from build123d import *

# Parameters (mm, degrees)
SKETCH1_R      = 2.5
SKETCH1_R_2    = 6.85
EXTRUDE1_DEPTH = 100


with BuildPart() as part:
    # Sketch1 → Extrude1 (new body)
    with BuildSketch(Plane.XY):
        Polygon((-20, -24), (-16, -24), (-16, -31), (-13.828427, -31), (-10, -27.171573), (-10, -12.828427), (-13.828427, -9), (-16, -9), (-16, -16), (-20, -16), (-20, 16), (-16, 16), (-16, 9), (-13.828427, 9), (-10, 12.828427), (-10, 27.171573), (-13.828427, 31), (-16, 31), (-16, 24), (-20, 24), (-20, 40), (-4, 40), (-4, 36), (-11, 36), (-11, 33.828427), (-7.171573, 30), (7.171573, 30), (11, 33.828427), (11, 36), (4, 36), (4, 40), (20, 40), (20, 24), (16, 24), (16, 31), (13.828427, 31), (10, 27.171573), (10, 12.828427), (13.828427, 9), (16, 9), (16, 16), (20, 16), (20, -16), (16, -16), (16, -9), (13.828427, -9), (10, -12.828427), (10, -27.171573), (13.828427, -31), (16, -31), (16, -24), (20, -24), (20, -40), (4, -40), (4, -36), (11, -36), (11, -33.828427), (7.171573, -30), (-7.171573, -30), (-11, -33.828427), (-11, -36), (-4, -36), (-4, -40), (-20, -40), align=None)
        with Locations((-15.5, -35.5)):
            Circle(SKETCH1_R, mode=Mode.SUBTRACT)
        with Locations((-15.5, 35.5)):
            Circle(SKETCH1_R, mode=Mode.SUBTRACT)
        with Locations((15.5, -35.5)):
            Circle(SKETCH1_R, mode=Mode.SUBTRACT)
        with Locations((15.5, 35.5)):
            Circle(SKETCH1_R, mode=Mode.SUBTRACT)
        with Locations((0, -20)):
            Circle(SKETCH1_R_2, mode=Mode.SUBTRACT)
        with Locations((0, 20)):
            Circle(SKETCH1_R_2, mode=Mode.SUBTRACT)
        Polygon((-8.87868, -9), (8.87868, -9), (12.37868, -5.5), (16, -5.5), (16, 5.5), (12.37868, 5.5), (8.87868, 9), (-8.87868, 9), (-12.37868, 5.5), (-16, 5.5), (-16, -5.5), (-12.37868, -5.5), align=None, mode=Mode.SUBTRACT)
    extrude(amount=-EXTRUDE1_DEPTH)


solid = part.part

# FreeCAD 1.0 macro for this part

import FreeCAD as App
import Part
import Sketcher
from FreeCAD import Vector


def add_polygon(sketch, points):
    """Adds a closed chain of lines whose ends are joined by coincident constraints."""
    first, n = sketch.GeometryCount, len(points)
    for a, b in zip(points, points[1:] + points[:1]):
        sketch.addGeometry(Part.LineSegment(App.Vector(*a, 0), App.Vector(*b, 0)), False)
    for i in range(n):
        sketch.addConstraint(Sketcher.Constraint("Coincident", first + i, 2, first + (i + 1) % n, 1))

doc = App.newDocument("Part")
body = doc.addObject("PartDesign::Body", "Body")

# Sketch on XY plane
sketch1 = doc.addObject("Sketcher::SketchObject", "Sketch")
body.addObject(sketch1)
sketch1.AttachmentSupport = (doc.XY_Plane, [""])
sketch1.MapMode = "FlatFace"
add_polygon(sketch1, [(-16, -24), (-20, -24), (-20, -40), (-4, -40), (-4, -36), (-11, -36), (-11, -33.828427), (-7.171573, -30), (7.171573, -30), (11, -33.828427), (11, -36), (4, -36), (4, -40), (20, -40), (20, -24), (16, -24), (16, -31), (13.828427, -31), (10, -27.171573), (10, -12.828427), (13.828427, -9), (16, -9), (16, -16), (20, -16), (20, 16), (16, 16), (16, 9), (13.828427, 9), (10, 12.828427), (10, 27.171573), (13.828427, 31), (16, 31), (16, 24), (20, 24), (20, 40), (4, 40), (4, 36), (11, 36), (11, 33.828427), (7.171573, 30), (-7.171573, 30), (-11, 33.828427), (-11, 36), (-4, 36), (-4, 40), (-20, 40), (-20, 24), (-16, 24), (-16, 31), (-13.828427, 31), (-10, 27.171573), (-10, 12.828427), (-13.828427, 9), (-16, 9), (-16, 16), (-20, 16), (-20, -16), (-16, -16), (-16, -9), (-13.828427, -9), (-10, -12.828427), (-10, -27.171573), (-13.828427, -31), (-16, -31)])  # lines 0-63
sketch1.addGeometry(Part.Circle(Vector(15.5, -35.5, 0), Vector(0, 0, 1), 2.5), False)  # 64
sketch1.addGeometry(Part.Circle(Vector(0, -20, 0), Vector(0, 0, 1), 6.85), False)  # 65
sketch1.addGeometry(Part.Circle(Vector(-15.5, -35.5, 0), Vector(0, 0, 1), 2.5), False)  # 66
sketch1.addGeometry(Part.Circle(Vector(15.5, 35.5, 0), Vector(0, 0, 1), 2.5), False)  # 67
add_polygon(sketch1, [(-8.87868, -9), (-12.37868, -5.5), (-16, -5.5), (-16, 5.5), (-12.37868, 5.5), (-8.87868, 9), (8.87868, 9), (12.37868, 5.5), (16, 5.5), (16, -5.5), (12.37868, -5.5), (8.87868, -9)])  # lines 68-79
sketch1.addGeometry(Part.Circle(Vector(0, 20, 0), Vector(0, 0, 1), 6.85), False)  # 80
sketch1.addGeometry(Part.Circle(Vector(-15.5, 35.5, 0), Vector(0, 0, 1), 2.5), False)  # 81
sketch1.addConstraint(Sketcher.Constraint("Horizontal", 0))
sketch1.addConstraint(Sketcher.Constraint("Vertical", 1))
sketch1.addConstraint(Sketcher.Constraint("Horizontal", 2))
sketch1.addConstraint(Sketcher.Constraint("Vertical", 3))
sketch1.addConstraint(Sketcher.Constraint("Horizontal", 4))
sketch1.addConstraint(Sketcher.Constraint("Vertical", 5))
sketch1.addConstraint(Sketcher.Constraint("Horizontal", 7))
sketch1.addConstraint(Sketcher.Constraint("Vertical", 9))
sketch1.addConstraint(Sketcher.Constraint("Horizontal", 10))
sketch1.addConstraint(Sketcher.Constraint("Vertical", 11))
sketch1.addConstraint(Sketcher.Constraint("Horizontal", 12))
sketch1.addConstraint(Sketcher.Constraint("Vertical", 13))
sketch1.addConstraint(Sketcher.Constraint("Horizontal", 14))
sketch1.addConstraint(Sketcher.Constraint("Vertical", 15))
sketch1.addConstraint(Sketcher.Constraint("Horizontal", 16))
sketch1.addConstraint(Sketcher.Constraint("Vertical", 18))
sketch1.addConstraint(Sketcher.Constraint("Horizontal", 20))
sketch1.addConstraint(Sketcher.Constraint("Vertical", 21))
sketch1.addConstraint(Sketcher.Constraint("Horizontal", 22))
sketch1.addConstraint(Sketcher.Constraint("Vertical", 23))
sketch1.addConstraint(Sketcher.Constraint("Horizontal", 24))
sketch1.addConstraint(Sketcher.Constraint("Vertical", 25))
sketch1.addConstraint(Sketcher.Constraint("Horizontal", 26))
sketch1.addConstraint(Sketcher.Constraint("Vertical", 28))
sketch1.addConstraint(Sketcher.Constraint("Horizontal", 30))
sketch1.addConstraint(Sketcher.Constraint("Vertical", 31))
sketch1.addConstraint(Sketcher.Constraint("Horizontal", 32))
sketch1.addConstraint(Sketcher.Constraint("Vertical", 33))
sketch1.addConstraint(Sketcher.Constraint("Horizontal", 34))
sketch1.addConstraint(Sketcher.Constraint("Vertical", 35))
sketch1.addConstraint(Sketcher.Constraint("Horizontal", 36))
sketch1.addConstraint(Sketcher.Constraint("Vertical", 37))
sketch1.addConstraint(Sketcher.Constraint("Horizontal", 39))
sketch1.addConstraint(Sketcher.Constraint("Vertical", 41))
sketch1.addConstraint(Sketcher.Constraint("Horizontal", 42))
sketch1.addConstraint(Sketcher.Constraint("Vertical", 43))
sketch1.addConstraint(Sketcher.Constraint("Horizontal", 44))
sketch1.addConstraint(Sketcher.Constraint("Vertical", 45))
sketch1.addConstraint(Sketcher.Constraint("Horizontal", 46))
sketch1.addConstraint(Sketcher.Constraint("Vertical", 47))
sketch1.addConstraint(Sketcher.Constraint("Horizontal", 48))
sketch1.addConstraint(Sketcher.Constraint("Vertical", 50))
sketch1.addConstraint(Sketcher.Constraint("Horizontal", 52))
sketch1.addConstraint(Sketcher.Constraint("Vertical", 53))
sketch1.addConstraint(Sketcher.Constraint("Horizontal", 54))
sketch1.addConstraint(Sketcher.Constraint("Vertical", 55))
sketch1.addConstraint(Sketcher.Constraint("Horizontal", 56))
sketch1.addConstraint(Sketcher.Constraint("Vertical", 57))
sketch1.addConstraint(Sketcher.Constraint("Horizontal", 58))
sketch1.addConstraint(Sketcher.Constraint("Vertical", 60))
sketch1.addConstraint(Sketcher.Constraint("Horizontal", 62))
sketch1.addConstraint(Sketcher.Constraint("Vertical", 63))
sketch1.addConstraint(Sketcher.Constraint("Horizontal", 69))
sketch1.addConstraint(Sketcher.Constraint("Vertical", 70))
sketch1.addConstraint(Sketcher.Constraint("Horizontal", 71))
sketch1.addConstraint(Sketcher.Constraint("Horizontal", 73))
sketch1.addConstraint(Sketcher.Constraint("Horizontal", 75))
sketch1.addConstraint(Sketcher.Constraint("Vertical", 76))
sketch1.addConstraint(Sketcher.Constraint("Horizontal", 77))
sketch1.addConstraint(Sketcher.Constraint("Horizontal", 79))
sketch1.addConstraint(Sketcher.Constraint("Equal", 64, 66))
sketch1.addConstraint(Sketcher.Constraint("Equal", 66, 67))
sketch1.addConstraint(Sketcher.Constraint("Equal", 65, 80))
sketch1.addConstraint(Sketcher.Constraint("Equal", 67, 81))
sketch1.addConstraint(Sketcher.Constraint("Symmetric", 66, 3, 67, 3, -1, 1))
sketch1.addConstraint(Sketcher.Constraint("Symmetric", 65, 3, 80, 3, -1, 1))
sketch1.addConstraint(Sketcher.Constraint("Symmetric", 64, 3, 81, 3, -1, 1))
sketch1.addConstraint(Sketcher.Constraint("Symmetric", 0, 2, 32, 2, -1, 1))
sketch1.addConstraint(Sketcher.Constraint("Symmetric", 2, 2, 34, 2, -1, 1))
sketch1.addConstraint(Sketcher.Constraint("Symmetric", 4, 2, 36, 2, -1, 1))
sketch1.addConstraint(Sketcher.Constraint("Symmetric", 6, 2, 38, 2, -1, 1))
sketch1.addConstraint(Sketcher.Constraint("Symmetric", 8, 2, 40, 2, -1, 1))
sketch1.addConstraint(Sketcher.Constraint("Symmetric", 10, 2, 42, 2, -1, 1))
sketch1.addConstraint(Sketcher.Constraint("Symmetric", 12, 2, 44, 2, -1, 1))
sketch1.addConstraint(Sketcher.Constraint("Symmetric", 14, 2, 46, 2, -1, 1))
sketch1.addConstraint(Sketcher.Constraint("Symmetric", 16, 2, 48, 2, -1, 1))
sketch1.addConstraint(Sketcher.Constraint("Symmetric", 17, 2, 49, 2, -1, 1))
sketch1.addConstraint(Sketcher.Constraint("Symmetric", 19, 2, 51, 2, -1, 1))
sketch1.addConstraint(Sketcher.Constraint("Symmetric", 21, 2, 53, 2, -1, 1))
sketch1.addConstraint(Sketcher.Constraint("Symmetric", 23, 2, 55, 2, -1, 1))
sketch1.addConstraint(Sketcher.Constraint("Symmetric", 25, 2, 57, 2, -1, 1))
sketch1.addConstraint(Sketcher.Constraint("Symmetric", 27, 2, 59, 2, -1, 1))
sketch1.addConstraint(Sketcher.Constraint("Symmetric", 29, 2, 61, 2, -1, 1))
sketch1.addConstraint(Sketcher.Constraint("Symmetric", 68, 2, 74, 2, -1, 1))
sketch1.addConstraint(Sketcher.Constraint("Symmetric", 70, 2, 76, 2, -1, 1))
sketch1.addConstraint(Sketcher.Constraint("Symmetric", 72, 2, 78, 2, -1, 1))
sketch1.addConstraint(Sketcher.Constraint("Symmetric", 64, 3, 66, 3, -2))
sketch1.addConstraint(Sketcher.Constraint("Symmetric", 5, 2, 8, 2, -2))
sketch1.addConstraint(Sketcher.Constraint("Symmetric", 3, 2, 10, 2, -2))
sketch1.addConstraint(Sketcher.Constraint("Symmetric", 1, 2, 12, 2, -2))
sketch1.addConstraint(Sketcher.Constraint("Symmetric", 31, 2, 46, 2, -2))
sketch1.addConstraint(Sketcher.Constraint("Symmetric", 29, 2, 48, 2, -2))
sketch1.addConstraint(Sketcher.Constraint("Symmetric", 28, 2, 49, 2, -2))
sketch1.addConstraint(Sketcher.Constraint("Symmetric", 26, 2, 51, 2, -2))
sketch1.addConstraint(Sketcher.Constraint("Symmetric", 24, 2, 53, 2, -2))
sketch1.addConstraint(Sketcher.Constraint("Symmetric", 71, 2, 74, 2, -2))
sketch1.addConstraint(Sketcher.Constraint("PointOnObject", 65, 3, -2))
sketch1.addConstraint(Sketcher.Constraint("Perpendicular", 6, 8))
sketch1.addConstraint(Sketcher.Constraint("Parallel", 8, 17))
sketch1.addConstraint(Sketcher.Constraint("Perpendicular", 17, 19))
sketch1.addConstraint(Sketcher.Constraint("Perpendicular", 19, 27))
sketch1.addConstraint(Sketcher.Constraint("Perpendicular", 27, 29))
sketch1.addConstraint(Sketcher.Constraint("Parallel", 29, 38))
sketch1.addConstraint(Sketcher.Constraint("Perpendicular", 38, 40))
sketch1.addConstraint(Sketcher.Constraint("Perpendicular", 49, 51))
sketch1.addConstraint(Sketcher.Constraint("Perpendicular", 51, 59))
sketch1.addConstraint(Sketcher.Constraint("Perpendicular", 59, 61))
sketch1.addConstraint(Sketcher.Constraint("Perpendicular", 61, 68))
sketch1.addConstraint(Sketcher.Constraint("Perpendicular", 68, 72))
sketch1.addConstraint(Sketcher.Constraint("Perpendicular", 72, 74))
sketch1.addConstraint(Sketcher.Constraint("Perpendicular", 74, 78))
sketch1.addConstraint(Sketcher.Constraint("Horizontal", 52, 2, 72, 2))
sketch1.addConstraint(Sketcher.Constraint("Vertical", 16, 2, 19, 2))
sketch1.addConstraint(Sketcher.Constraint("Vertical", 15, 2, 20, 2))
sketch1.addConstraint(Sketcher.Constraint("Vertical", 13, 2, 22, 2))
sketch1.addConstraint(Sketcher.Constraint("Vertical", 57, 2, 62, 2))
sketch1.addConstraint(Sketcher.Constraint("Vertical", 63, 2, 69, 2))
sketch1.addConstraint(Sketcher.Constraint("Equal", 44, 1))
sketch1.addConstraint(Sketcher.Constraint("Equal", 56, 3))
sketch1.addConstraint(Sketcher.Constraint("Equal", 62, 5))
sketch1.addConstraint(Sketcher.Constraint("Equal", 42, 15))
sketch1.addConstraint(Sketcher.Constraint("Equal", 39, 18))
sketch1.addConstraint(Sketcher.Constraint("Equal", 15, 21))
sketch1.addConstraint(Sketcher.Constraint("Equal", 8, 17))
sketch1.addConstraint(Sketcher.Constraint("Diameter", 64, 5.0))
sketch1.addConstraint(Sketcher.Constraint("Diameter", 65, 13.7))
sketch1.addConstraint(Sketcher.Constraint("DistanceX", 0, 2, 0, 1, 4.0))
sketch1.addConstraint(Sketcher.Constraint("DistanceX", 2, 1, 2, 2, 16.0))
sketch1.addConstraint(Sketcher.Constraint("DistanceX", 4, 2, 4, 1, 7.0))
sketch1.addConstraint(Sketcher.Constraint("DistanceY", 23, 1, 23, 2, 32.0))
sketch1.addConstraint(Sketcher.Constraint("DistanceY", 70, 1, 70, 2, 11.0))
sketch1.addConstraint(Sketcher.Constraint("DistanceY", 65, 3, -1, 1, 20.0))
sketch1.addConstraint(Sketcher.Constraint("DistanceX", 0, 2, -1, 1, 20.0))
sketch1.addConstraint(Sketcher.Constraint("DistanceY", 6, 2, -1, 1, 30.0))
sketch1.addConstraint(Sketcher.Constraint("DistanceX", -1, 1, 64, 3, 15.5))
sketch1.addConstraint(Sketcher.Constraint("DistanceY", 64, 3, -1, 1, 35.5))
sketch1.addConstraint(Sketcher.Constraint("DistanceX", 69, 2, 69, 1, 3.62132))
sketch1.addConstraint(Sketcher.Constraint("DistanceX", 7, 1, 7, 2, 14.343146))
pad1 = doc.addObject("PartDesign::Pad", "Pad")
body.addObject(pad1)
pad1.Profile = sketch1
pad1.Length = 100
pad1.Reversed = True

doc.recompute()
